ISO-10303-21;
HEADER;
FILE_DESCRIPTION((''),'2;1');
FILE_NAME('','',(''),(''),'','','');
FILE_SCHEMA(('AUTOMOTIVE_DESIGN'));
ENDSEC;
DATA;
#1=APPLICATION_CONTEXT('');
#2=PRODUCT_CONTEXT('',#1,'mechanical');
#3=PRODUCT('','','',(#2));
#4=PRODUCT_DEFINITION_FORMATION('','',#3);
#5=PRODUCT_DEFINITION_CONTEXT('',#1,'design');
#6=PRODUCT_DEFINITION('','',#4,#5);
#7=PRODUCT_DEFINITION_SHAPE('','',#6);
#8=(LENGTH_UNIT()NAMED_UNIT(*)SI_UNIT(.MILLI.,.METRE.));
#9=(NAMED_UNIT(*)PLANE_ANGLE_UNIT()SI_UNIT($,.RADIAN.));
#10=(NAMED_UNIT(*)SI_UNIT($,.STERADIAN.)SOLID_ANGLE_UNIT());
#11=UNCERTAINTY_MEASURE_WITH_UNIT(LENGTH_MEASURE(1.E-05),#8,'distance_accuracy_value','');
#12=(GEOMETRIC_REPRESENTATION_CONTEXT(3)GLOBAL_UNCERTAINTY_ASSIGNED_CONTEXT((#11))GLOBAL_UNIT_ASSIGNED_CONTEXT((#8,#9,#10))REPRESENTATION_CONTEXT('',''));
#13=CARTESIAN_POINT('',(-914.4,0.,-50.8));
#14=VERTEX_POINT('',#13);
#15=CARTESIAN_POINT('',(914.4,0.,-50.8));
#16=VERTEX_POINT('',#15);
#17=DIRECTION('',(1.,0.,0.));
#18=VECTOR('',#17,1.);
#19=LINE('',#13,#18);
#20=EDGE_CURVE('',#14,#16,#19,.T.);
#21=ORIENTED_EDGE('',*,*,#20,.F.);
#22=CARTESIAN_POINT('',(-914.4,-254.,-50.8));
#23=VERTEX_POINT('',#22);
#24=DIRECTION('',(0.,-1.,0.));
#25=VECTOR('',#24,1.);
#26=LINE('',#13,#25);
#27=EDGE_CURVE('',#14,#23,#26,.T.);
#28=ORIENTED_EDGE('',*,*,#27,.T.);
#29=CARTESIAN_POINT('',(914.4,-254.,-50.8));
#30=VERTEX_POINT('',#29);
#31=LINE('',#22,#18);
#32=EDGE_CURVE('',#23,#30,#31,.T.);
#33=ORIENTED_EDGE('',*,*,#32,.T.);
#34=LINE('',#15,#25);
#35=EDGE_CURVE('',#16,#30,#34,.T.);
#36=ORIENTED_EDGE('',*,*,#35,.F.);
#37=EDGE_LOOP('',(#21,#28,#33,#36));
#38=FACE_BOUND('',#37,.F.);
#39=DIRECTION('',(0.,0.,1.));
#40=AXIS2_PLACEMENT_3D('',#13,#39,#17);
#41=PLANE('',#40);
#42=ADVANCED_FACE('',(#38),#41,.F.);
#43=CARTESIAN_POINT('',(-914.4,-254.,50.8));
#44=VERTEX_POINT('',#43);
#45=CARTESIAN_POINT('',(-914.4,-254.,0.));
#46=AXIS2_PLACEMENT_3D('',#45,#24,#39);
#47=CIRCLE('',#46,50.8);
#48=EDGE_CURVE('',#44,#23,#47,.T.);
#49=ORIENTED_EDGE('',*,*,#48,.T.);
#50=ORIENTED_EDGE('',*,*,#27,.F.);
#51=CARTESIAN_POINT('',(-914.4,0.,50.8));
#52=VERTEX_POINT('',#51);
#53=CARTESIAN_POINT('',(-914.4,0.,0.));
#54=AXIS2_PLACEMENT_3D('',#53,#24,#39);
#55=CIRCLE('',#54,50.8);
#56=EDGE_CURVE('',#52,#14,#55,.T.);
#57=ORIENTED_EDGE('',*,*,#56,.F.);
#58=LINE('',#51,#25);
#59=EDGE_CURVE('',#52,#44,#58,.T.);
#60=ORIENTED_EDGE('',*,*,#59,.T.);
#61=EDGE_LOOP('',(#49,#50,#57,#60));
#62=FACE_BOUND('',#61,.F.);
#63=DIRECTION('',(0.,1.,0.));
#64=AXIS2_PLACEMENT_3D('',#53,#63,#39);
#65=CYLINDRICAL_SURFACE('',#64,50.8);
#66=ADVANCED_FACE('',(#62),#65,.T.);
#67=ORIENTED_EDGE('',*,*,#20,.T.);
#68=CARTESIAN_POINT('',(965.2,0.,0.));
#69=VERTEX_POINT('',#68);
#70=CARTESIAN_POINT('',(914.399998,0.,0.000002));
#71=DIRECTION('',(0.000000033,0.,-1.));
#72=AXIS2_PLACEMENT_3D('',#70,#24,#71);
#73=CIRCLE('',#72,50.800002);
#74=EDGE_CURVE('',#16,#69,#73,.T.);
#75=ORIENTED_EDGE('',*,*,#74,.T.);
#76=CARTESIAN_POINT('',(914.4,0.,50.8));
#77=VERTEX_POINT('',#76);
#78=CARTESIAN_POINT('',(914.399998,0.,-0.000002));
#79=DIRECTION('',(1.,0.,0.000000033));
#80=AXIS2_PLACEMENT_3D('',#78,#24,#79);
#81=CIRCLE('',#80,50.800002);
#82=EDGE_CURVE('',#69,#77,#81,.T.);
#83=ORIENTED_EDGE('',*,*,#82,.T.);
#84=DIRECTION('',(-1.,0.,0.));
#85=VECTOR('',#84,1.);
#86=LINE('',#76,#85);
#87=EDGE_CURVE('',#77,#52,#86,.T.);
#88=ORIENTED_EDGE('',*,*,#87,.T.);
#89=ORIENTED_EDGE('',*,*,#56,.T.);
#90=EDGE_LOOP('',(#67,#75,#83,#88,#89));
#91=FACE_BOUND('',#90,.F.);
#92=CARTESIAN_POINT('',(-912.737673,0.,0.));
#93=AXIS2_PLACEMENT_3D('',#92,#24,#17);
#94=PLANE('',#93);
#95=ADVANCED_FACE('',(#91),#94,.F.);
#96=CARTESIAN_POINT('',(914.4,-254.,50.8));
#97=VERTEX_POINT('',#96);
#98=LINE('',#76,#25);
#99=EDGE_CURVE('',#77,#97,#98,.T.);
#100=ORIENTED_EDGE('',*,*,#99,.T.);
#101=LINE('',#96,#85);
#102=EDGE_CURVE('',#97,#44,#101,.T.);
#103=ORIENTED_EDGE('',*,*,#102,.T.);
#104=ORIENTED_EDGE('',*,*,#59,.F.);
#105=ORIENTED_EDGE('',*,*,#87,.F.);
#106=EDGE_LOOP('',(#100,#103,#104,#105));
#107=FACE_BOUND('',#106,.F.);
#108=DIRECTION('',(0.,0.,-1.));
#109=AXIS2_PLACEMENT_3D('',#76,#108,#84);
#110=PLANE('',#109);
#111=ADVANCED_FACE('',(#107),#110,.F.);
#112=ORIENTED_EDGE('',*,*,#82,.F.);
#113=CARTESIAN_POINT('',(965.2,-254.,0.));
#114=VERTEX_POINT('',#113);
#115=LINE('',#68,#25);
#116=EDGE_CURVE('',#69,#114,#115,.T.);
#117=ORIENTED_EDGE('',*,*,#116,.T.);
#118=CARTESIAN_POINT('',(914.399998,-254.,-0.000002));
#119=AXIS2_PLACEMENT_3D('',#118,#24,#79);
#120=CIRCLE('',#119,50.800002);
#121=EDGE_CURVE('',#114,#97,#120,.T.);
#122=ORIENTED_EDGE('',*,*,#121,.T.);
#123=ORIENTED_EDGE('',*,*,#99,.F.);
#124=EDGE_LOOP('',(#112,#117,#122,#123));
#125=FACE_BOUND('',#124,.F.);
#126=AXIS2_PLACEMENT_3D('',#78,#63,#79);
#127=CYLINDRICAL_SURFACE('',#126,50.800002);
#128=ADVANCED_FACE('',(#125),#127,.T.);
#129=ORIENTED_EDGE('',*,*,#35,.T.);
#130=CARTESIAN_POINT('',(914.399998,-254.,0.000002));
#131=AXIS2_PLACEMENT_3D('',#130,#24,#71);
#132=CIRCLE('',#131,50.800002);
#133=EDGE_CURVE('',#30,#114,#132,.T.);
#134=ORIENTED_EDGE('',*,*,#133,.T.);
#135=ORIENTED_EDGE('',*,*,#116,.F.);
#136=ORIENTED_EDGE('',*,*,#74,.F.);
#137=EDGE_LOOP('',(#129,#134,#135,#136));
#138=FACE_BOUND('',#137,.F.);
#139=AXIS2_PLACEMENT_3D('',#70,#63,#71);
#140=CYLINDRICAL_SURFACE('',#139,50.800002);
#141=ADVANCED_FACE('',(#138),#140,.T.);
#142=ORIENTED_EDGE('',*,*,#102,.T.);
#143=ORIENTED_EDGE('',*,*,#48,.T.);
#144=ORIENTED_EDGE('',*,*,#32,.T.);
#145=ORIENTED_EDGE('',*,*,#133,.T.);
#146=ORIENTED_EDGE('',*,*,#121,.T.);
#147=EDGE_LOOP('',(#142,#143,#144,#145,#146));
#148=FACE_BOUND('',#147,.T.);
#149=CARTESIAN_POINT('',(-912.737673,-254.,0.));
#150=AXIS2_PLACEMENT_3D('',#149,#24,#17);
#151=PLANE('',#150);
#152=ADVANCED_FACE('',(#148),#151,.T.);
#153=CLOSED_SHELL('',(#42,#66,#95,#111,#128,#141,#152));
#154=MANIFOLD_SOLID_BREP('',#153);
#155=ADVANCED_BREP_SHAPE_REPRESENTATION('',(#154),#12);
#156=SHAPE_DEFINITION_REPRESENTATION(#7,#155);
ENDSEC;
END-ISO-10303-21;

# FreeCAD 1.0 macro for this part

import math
import FreeCAD as App
import Part
import Sketcher
from FreeCAD import Vector
Q = App.Units.Quantity

doc = App.newDocument("Part")
body = doc.addObject("PartDesign::Body", "Body")

# Sketch on XZ plane
sketch1 = body.newObject("Sketcher::SketchObject", "Sketch")
sketch1.AttachmentSupport = (doc.getObject("XZ_Plane"), [""])
sketch1.MapMode = "FlatFace"
sketch1.addGeometry([
    Part.ArcOfCircle(Part.Circle(Vector(-914, 0, 0), Vector(0, 0, 1), 51), math.radians(90), math.radians(270)),  # 0
    Part.LineSegment(Vector(-914, -51, 0), Vector(914, -51, 0)),  # 1
    Part.ArcOfCircle(Part.Circle(Vector(914, 0, 0), Vector(0, 0, 1), 51), math.radians(-90), math.radians(0)),  # 2
    Part.ArcOfCircle(Part.Circle(Vector(914, 0, 0), Vector(0, 0, 1), 51), math.radians(0), math.radians(90)),  # 3
    Part.LineSegment(Vector(914, 51, 0), Vector(-914, 51, 0)),  # 4
], False)
sketch1.addConstraint([
    Sketcher.Constraint("Tangent", 0, 2, 1, 1),
    Sketcher.Constraint("Tangent", 1, 2, 2, 1),
    Sketcher.Constraint("Tangent", 2, 2, 3, 1),
    Sketcher.Constraint("Tangent", 3, 2, 4, 1),
    Sketcher.Constraint("Tangent", 4, 2, 0, 1),
    Sketcher.Constraint("Horizontal", 1),
    Sketcher.Constraint("Horizontal", 4),
    Sketcher.Constraint("Equal", 0, 2),
    Sketcher.Constraint("Symmetric", 0, 3, 2, 3, -1, 1),
    Sketcher.Constraint("PointOnObject", 2, 2, -1),
    Sketcher.Constraint("Radius", 0, Q("2 in")),
    Sketcher.Constraint("DistanceX", 1, 1, 1, 2, Q("72 in")),
])
pad1 = body.newObject("PartDesign::Pad", "Pad")
pad1.Profile = sketch1
pad1.Length = Q("10 in")

doc.recompute()
